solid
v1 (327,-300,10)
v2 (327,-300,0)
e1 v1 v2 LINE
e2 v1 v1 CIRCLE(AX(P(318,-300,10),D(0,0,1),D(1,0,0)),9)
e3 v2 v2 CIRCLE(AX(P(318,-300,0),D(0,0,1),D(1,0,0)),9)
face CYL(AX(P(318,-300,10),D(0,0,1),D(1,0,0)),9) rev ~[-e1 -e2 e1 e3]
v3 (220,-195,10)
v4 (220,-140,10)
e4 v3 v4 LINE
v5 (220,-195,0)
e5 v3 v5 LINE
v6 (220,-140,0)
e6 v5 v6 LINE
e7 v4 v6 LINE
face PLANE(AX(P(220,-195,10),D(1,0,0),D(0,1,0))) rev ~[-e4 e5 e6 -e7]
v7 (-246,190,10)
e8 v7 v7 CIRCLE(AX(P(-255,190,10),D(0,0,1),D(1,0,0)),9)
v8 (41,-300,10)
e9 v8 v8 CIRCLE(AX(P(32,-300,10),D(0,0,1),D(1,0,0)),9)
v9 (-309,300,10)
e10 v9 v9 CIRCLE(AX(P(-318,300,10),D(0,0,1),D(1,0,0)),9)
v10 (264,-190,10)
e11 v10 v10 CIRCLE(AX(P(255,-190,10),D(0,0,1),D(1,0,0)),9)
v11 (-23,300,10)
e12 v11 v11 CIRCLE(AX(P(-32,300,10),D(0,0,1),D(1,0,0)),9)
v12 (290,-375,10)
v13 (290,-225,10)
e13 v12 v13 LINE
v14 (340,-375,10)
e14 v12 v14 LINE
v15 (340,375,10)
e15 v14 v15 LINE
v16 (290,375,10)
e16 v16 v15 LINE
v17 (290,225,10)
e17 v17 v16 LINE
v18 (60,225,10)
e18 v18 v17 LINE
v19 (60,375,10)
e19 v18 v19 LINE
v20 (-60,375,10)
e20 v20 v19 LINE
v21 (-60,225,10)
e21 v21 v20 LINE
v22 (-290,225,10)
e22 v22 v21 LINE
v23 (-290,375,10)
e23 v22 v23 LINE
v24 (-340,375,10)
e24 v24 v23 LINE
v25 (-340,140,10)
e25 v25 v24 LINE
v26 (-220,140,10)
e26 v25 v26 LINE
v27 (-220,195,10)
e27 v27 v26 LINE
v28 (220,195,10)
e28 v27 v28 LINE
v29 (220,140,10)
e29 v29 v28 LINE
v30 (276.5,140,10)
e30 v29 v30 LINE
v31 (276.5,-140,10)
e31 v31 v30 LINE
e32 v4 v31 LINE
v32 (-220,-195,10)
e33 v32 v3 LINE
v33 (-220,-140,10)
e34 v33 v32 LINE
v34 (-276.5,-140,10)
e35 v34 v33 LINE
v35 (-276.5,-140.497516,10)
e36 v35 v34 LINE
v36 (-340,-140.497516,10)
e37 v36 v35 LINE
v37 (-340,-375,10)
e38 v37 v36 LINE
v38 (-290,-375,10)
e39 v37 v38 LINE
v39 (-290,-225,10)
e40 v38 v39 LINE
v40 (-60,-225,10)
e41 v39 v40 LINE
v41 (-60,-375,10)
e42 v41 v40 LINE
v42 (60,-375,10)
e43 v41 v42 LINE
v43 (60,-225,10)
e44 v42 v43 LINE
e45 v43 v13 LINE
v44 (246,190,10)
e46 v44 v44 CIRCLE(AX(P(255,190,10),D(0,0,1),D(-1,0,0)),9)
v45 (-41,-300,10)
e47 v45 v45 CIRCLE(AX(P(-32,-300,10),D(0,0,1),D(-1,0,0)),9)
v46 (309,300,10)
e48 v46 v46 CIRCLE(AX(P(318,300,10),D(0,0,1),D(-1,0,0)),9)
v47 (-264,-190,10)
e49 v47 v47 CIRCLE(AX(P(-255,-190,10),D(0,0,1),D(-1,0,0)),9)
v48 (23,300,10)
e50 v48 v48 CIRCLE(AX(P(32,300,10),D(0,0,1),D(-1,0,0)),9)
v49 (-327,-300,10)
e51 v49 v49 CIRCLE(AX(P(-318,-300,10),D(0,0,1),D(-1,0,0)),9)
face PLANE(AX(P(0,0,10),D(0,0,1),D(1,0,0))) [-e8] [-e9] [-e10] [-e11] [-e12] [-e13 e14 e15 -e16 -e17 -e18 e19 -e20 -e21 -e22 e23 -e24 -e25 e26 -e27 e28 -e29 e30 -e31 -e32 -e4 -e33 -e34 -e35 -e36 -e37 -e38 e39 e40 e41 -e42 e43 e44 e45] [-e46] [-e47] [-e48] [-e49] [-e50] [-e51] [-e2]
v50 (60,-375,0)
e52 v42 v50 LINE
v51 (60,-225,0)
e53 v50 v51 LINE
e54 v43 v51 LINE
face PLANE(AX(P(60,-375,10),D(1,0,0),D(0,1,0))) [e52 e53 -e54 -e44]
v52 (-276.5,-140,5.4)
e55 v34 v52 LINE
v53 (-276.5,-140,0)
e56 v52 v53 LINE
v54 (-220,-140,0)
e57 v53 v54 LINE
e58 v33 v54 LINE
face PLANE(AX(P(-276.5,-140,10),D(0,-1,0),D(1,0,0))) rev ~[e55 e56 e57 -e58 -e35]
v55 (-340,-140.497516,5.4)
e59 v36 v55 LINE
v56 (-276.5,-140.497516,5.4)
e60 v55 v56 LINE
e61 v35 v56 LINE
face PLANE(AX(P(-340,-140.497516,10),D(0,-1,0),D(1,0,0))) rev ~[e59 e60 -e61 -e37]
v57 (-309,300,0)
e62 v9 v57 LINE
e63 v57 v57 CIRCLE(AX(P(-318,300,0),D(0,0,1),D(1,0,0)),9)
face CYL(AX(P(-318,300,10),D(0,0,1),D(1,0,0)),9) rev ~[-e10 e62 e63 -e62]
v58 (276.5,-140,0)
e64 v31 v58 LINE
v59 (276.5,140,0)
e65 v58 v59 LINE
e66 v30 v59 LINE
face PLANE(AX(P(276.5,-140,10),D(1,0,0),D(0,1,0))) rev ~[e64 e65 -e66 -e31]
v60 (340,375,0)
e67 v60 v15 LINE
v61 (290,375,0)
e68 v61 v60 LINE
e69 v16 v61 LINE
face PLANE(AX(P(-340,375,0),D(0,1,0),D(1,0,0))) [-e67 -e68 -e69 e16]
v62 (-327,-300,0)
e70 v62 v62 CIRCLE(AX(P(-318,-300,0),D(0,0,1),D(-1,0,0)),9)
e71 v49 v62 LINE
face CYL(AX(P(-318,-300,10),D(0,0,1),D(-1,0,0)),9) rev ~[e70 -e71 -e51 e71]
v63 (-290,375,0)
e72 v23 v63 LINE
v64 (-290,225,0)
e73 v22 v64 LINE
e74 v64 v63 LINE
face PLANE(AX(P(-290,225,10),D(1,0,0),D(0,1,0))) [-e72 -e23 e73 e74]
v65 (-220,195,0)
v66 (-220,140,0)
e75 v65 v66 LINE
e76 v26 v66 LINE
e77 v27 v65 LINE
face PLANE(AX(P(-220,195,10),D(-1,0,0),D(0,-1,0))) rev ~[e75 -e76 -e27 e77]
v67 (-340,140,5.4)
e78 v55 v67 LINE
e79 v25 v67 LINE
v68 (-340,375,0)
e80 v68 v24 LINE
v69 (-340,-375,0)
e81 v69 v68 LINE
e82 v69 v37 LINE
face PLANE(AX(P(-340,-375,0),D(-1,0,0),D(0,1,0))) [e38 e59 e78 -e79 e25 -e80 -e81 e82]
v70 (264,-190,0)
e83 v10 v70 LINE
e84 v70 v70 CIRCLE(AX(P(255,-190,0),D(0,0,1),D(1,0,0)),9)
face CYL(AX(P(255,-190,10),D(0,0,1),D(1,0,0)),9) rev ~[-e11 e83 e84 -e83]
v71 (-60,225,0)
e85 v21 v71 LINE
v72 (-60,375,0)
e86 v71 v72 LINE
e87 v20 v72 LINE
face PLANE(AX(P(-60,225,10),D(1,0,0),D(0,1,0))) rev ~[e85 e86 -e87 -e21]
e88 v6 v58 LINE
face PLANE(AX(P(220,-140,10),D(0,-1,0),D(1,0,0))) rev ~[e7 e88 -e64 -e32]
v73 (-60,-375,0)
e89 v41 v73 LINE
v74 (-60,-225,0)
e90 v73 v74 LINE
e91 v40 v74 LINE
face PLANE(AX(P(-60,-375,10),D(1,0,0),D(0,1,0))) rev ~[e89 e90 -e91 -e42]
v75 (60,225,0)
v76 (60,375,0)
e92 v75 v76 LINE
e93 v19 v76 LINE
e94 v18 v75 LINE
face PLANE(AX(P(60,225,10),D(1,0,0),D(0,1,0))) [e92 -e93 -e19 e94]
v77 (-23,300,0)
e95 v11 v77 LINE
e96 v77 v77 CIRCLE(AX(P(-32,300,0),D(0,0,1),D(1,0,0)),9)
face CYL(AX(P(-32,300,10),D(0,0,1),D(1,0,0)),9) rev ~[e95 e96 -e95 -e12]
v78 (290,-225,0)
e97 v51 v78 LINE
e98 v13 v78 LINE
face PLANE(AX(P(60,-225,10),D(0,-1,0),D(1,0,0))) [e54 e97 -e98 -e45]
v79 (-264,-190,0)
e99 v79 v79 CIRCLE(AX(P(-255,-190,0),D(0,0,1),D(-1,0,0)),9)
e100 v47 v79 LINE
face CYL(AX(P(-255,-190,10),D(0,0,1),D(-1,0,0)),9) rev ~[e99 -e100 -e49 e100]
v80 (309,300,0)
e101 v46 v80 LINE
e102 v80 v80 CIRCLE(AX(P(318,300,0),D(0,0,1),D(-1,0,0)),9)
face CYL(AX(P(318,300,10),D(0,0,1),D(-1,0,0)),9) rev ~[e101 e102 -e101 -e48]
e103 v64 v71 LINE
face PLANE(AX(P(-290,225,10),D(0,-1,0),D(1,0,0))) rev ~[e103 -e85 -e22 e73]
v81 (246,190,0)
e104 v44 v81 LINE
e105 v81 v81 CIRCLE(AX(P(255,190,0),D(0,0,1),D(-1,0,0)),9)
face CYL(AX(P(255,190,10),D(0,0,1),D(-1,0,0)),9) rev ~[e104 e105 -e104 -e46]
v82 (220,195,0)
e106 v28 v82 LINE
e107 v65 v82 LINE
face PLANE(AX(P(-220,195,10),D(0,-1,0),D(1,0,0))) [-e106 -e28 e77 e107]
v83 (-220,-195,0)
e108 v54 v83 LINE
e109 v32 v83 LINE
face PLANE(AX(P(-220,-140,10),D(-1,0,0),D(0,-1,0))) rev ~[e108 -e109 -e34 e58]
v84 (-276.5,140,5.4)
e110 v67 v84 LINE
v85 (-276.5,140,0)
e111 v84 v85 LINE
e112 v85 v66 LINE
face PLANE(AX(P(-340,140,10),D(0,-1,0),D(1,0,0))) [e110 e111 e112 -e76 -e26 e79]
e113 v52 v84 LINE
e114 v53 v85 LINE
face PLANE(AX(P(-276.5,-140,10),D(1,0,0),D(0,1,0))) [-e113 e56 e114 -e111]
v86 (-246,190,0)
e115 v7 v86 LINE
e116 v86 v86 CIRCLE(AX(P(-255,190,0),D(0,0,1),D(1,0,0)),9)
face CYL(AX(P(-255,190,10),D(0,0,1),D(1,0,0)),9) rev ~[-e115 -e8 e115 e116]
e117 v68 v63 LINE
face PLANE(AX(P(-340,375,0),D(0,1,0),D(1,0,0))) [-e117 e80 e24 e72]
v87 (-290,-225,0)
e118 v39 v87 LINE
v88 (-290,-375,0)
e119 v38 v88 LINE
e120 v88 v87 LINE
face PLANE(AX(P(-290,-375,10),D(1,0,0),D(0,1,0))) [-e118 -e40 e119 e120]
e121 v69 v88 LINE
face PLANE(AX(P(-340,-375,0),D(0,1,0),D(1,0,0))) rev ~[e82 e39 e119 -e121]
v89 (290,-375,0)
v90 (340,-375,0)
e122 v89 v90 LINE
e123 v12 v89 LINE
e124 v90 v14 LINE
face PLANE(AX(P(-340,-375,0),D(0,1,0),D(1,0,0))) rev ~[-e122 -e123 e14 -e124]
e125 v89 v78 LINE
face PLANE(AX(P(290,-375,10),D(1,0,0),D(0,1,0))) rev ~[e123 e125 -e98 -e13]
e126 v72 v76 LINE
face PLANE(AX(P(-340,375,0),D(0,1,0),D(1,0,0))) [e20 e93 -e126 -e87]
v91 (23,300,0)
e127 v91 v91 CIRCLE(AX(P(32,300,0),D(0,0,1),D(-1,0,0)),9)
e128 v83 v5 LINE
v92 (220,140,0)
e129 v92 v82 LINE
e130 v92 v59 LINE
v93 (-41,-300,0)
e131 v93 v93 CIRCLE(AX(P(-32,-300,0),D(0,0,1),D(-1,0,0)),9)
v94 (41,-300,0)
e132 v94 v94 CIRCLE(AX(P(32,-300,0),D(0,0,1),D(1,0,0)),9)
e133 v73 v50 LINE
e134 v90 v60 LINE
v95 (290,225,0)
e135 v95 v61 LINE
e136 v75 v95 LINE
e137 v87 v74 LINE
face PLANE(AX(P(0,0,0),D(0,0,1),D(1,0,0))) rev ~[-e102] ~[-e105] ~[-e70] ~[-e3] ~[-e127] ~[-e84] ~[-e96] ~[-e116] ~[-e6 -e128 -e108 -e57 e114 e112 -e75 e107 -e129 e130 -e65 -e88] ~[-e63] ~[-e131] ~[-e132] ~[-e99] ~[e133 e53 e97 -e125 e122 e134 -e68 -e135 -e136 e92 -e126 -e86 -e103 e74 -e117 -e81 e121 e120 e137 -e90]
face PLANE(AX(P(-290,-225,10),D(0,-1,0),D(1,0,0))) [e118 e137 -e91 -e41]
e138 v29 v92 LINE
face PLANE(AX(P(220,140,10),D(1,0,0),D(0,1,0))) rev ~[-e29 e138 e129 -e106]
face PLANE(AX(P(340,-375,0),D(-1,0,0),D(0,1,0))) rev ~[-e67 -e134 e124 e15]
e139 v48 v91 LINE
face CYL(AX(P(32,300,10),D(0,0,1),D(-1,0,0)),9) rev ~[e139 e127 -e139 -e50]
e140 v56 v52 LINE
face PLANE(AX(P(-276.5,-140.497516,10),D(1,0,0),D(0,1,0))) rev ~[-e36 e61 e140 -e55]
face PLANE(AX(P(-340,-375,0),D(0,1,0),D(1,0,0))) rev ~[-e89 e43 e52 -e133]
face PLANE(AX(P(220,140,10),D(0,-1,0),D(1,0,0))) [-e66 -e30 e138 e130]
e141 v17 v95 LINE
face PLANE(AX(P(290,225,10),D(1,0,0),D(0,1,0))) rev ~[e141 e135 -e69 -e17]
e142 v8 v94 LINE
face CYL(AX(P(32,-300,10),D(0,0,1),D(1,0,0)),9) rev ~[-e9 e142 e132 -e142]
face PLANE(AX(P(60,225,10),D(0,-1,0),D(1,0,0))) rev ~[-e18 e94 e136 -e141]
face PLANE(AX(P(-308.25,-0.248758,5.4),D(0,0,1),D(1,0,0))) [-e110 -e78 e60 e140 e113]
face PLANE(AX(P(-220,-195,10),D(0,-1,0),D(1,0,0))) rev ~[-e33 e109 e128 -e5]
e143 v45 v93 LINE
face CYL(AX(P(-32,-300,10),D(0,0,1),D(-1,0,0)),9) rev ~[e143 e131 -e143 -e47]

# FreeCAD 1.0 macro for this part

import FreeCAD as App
import Part
import Sketcher
from FreeCAD import Vector

doc = App.newDocument("Part")
body = doc.addObject("PartDesign::Body", "Body")

# Sketch on XY plane
sketch1 = body.newObject("Sketcher::SketchObject", "Sketch")
sketch1.AttachmentSupport = (doc.getObject("XY_Plane"), [""])
sketch1.MapMode = "FlatFace"
sketch1.addGeometry(Part.LineSegment(Vector(-340, 375, 0), Vector(-340, -375, 0)), False)
sketch1.addGeometry(Part.LineSegment(Vector(-340, -375, 0), Vector(340, -375, 0)), False)
sketch1.addGeometry(Part.LineSegment(Vector(340, -375, 0), Vector(340, 375, 0)), False)
sketch1.addGeometry(Part.LineSegment(Vector(340, 375, 0), Vector(-340, 375, 0)), False)
sketch1.addConstraint(Sketcher.Constraint("Coincident", 0, 2, 1, 1))
sketch1.addConstraint(Sketcher.Constraint("Coincident", 1, 2, 2, 1))
sketch1.addConstraint(Sketcher.Constraint("Coincident", 2, 2, 3, 1))
sketch1.addConstraint(Sketcher.Constraint("Coincident", 3, 2, 0, 1))
sketch1.addConstraint(Sketcher.Constraint("Vertical", 0))
sketch1.addConstraint(Sketcher.Constraint("Horizontal", 1))
sketch1.addConstraint(Sketcher.Constraint("Vertical", 2))
sketch1.addConstraint(Sketcher.Constraint("Horizontal", 3))
sketch1.addConstraint(Sketcher.Constraint("Symmetric", 0, 2, 2, 2, -1, 1))
sketch1.addConstraint(Sketcher.Constraint("DistanceX", 1, 1, 1, 2, 680.0))
sketch1.addConstraint(Sketcher.Constraint("DistanceY", 0, 2, 0, 1, 750.0))
pad1 = body.newObject("PartDesign::Pad", "Pad")
pad1.Profile = sketch1
pad1.Length = 10

# Sketch on XY plane
sketch2 = body.newObject("Sketcher::SketchObject", "Sketch001")
sketch2.AttachmentSupport = (doc.getObject("XY_Plane"), [""])
sketch2.MapMode = "FlatFace"
sketch2.AttachmentOffset = App.Placement(Vector(0, 0, 10), App.Rotation())
sketch2.addGeometry(Part.LineSegment(Vector(-290, 375, 0), Vector(-290, 225, 0)), False)
sketch2.addGeometry(Part.LineSegment(Vector(-290, 225, 0), Vector(-60, 225, 0)), False)
sketch2.addGeometry(Part.LineSegment(Vector(-60, 225, 0), Vector(-60, 375, 0)), False)
sketch2.addGeometry(Part.LineSegment(Vector(-60, 375, 0), Vector(-290, 375, 0)), False)
sketch2.addGeometry(Part.LineSegment(Vector(60, 375, 0), Vector(60, 225, 0)), False)
sketch2.addGeometry(Part.LineSegment(Vector(60, 225, 0), Vector(290, 225, 0)), False)
sketch2.addGeometry(Part.LineSegment(Vector(290, 225, 0), Vector(290, 375, 0)), False)
sketch2.addGeometry(Part.LineSegment(Vector(290, 375, 0), Vector(60, 375, 0)), False)
sketch2.addGeometry(Part.LineSegment(Vector(60, -225, 0), Vector(60, -375, 0)), False)
sketch2.addGeometry(Part.LineSegment(Vector(60, -375, 0), Vector(290, -375, 0)), False)
sketch2.addGeometry(Part.LineSegment(Vector(290, -375, 0), Vector(290, -225, 0)), False)
sketch2.addGeometry(Part.LineSegment(Vector(290, -225, 0), Vector(60, -225, 0)), False)
sketch2.addGeometry(Part.LineSegment(Vector(-290, -225, 0), Vector(-290, -375, 0)), False)
sketch2.addGeometry(Part.LineSegment(Vector(-290, -375, 0), Vector(-60, -375, 0)), False)
sketch2.addGeometry(Part.LineSegment(Vector(-60, -375, 0), Vector(-60, -225, 0)), False)
sketch2.addGeometry(Part.LineSegment(Vector(-60, -225, 0), Vector(-290, -225, 0)), False)
sketch2.addConstraint(Sketcher.Constraint("Coincident", 0, 2, 1, 1))
sketch2.addConstraint(Sketcher.Constraint("Coincident", 1, 2, 2, 1))
sketch2.addConstraint(Sketcher.Constraint("Coincident", 2, 2, 3, 1))
sketch2.addConstraint(Sketcher.Constraint("Coincident", 3, 2, 0, 1))
sketch2.addConstraint(Sketcher.Constraint("Coincident", 4, 2, 5, 1))
sketch2.addConstraint(Sketcher.Constraint("Coincident", 5, 2, 6, 1))
sketch2.addConstraint(Sketcher.Constraint("Coincident", 6, 2, 7, 1))
sketch2.addConstraint(Sketcher.Constraint("Coincident", 7, 2, 4, 1))
sketch2.addConstraint(Sketcher.Constraint("Coincident", 8, 2, 9, 1))
sketch2.addConstraint(Sketcher.Constraint("Coincident", 9, 2, 10, 1))
sketch2.addConstraint(Sketcher.Constraint("Coincident", 10, 2, 11, 1))
sketch2.addConstraint(Sketcher.Constraint("Coincident", 11, 2, 8, 1))
sketch2.addConstraint(Sketcher.Constraint("Coincident", 12, 2, 13, 1))
sketch2.addConstraint(Sketcher.Constraint("Coincident", 13, 2, 14, 1))
sketch2.addConstraint(Sketcher.Constraint("Coincident", 14, 2, 15, 1))
sketch2.addConstraint(Sketcher.Constraint("Coincident", 15, 2, 12, 1))
sketch2.addConstraint(Sketcher.Constraint("Vertical", 0))
sketch2.addConstraint(Sketcher.Constraint("Horizontal", 1))
sketch2.addConstraint(Sketcher.Constraint("Vertical", 2))
sketch2.addConstraint(Sketcher.Constraint("Horizontal", 3))
sketch2.addConstraint(Sketcher.Constraint("Vertical", 4))
sketch2.addConstraint(Sketcher.Constraint("Horizontal", 5))
sketch2.addConstraint(Sketcher.Constraint("Vertical", 6))
sketch2.addConstraint(Sketcher.Constraint("Horizontal", 7))
sketch2.addConstraint(Sketcher.Constraint("Vertical", 8))
sketch2.addConstraint(Sketcher.Constraint("Horizontal", 9))
sketch2.addConstraint(Sketcher.Constraint("Vertical", 10))
sketch2.addConstraint(Sketcher.Constraint("Horizontal", 11))
sketch2.addConstraint(Sketcher.Constraint("Vertical", 12))
sketch2.addConstraint(Sketcher.Constraint("Horizontal", 13))
sketch2.addConstraint(Sketcher.Constraint("Vertical", 14))
sketch2.addConstraint(Sketcher.Constraint("Horizontal", 15))
sketch2.addConstraint(Sketcher.Constraint("Symmetric", 2, 2, 8, 2, -1, 1))
sketch2.addConstraint(Sketcher.Constraint("Symmetric", 0, 2, 10, 2, -1, 1))
sketch2.addConstraint(Sketcher.Constraint("Symmetric", 6, 2, 12, 2, -1, 1))
sketch2.addConstraint(Sketcher.Constraint("Symmetric", 4, 2, 14, 2, -1, 1))
sketch2.addConstraint(Sketcher.Constraint("Symmetric", 1, 2, 4, 2, -2))
sketch2.addConstraint(Sketcher.Constraint("Symmetric", 3, 2, 6, 2, -2))
sketch2.addConstraint(Sketcher.Constraint("DistanceX", 1, 1, 1, 2, 230.0))
sketch2.addConstraint(Sketcher.Constraint("DistanceY", 0, 2, 0, 1, 150.0))
sketch2.addConstraint(Sketcher.Constraint("DistanceX", 0, 2, -1, 1, 290.0))
sketch2.addConstraint(Sketcher.Constraint("DistanceY", -1, 1, 0, 2, 225.0))
pocket1 = body.newObject("PartDesign::Pocket", "Pocket")
pocket1.Profile = sketch2
pocket1.Type = "ThroughAll"

# Sketch on XY plane
sketch3 = body.newObject("Sketcher::SketchObject", "Sketch002")
sketch3.AttachmentSupport = (doc.getObject("XY_Plane"), [""])
sketch3.MapMode = "FlatFace"
sketch3.AttachmentOffset = App.Placement(Vector(0, 0, 10), App.Rotation())
sketch3.addGeometry(Part.Circle(Vector(-318, 300, 0), Vector(0, 0, 1), 9), False)
sketch3.addGeometry(Part.Circle(Vector(-32, 300, 0), Vector(0, 0, 1), 9), False)
sketch3.addGeometry(Part.Circle(Vector(-255, 190, 0), Vector(0, 0, 1), 9), False)
sketch3.addGeometry(Part.Circle(Vector(318, 300, 0), Vector(0, 0, 1), 9), False)
sketch3.addGeometry(Part.Circle(Vector(255, 190, 0), Vector(0, 0, 1), 9), False)
sketch3.addGeometry(Part.Circle(Vector(32, 300, 0), Vector(0, 0, 1), 9), False)
sketch3.addGeometry(Part.Circle(Vector(318, -300, 0), Vector(0, 0, 1), 9), False)
sketch3.addGeometry(Part.Circle(Vector(255, -190, 0), Vector(0, 0, 1), 9), False)
sketch3.addGeometry(Part.Circle(Vector(32, -300, 0), Vector(0, 0, 1), 9), False)
sketch3.addGeometry(Part.Circle(Vector(-255, -190, 0), Vector(0, 0, 1), 9), False)
sketch3.addGeometry(Part.Circle(Vector(-32, -300, 0), Vector(0, 0, 1), 9), False)
sketch3.addGeometry(Part.Circle(Vector(-318, -300, 0), Vector(0, 0, 1), 9), False)
sketch3.addConstraint(Sketcher.Constraint("Equal", 0, 1))
sketch3.addConstraint(Sketcher.Constraint("Equal", 1, 2))
sketch3.addConstraint(Sketcher.Constraint("Equal", 2, 3))
sketch3.addConstraint(Sketcher.Constraint("Equal", 3, 4))
sketch3.addConstraint(Sketcher.Constraint("Equal", 4, 5))
sketch3.addConstraint(Sketcher.Constraint("Equal", 5, 6))
sketch3.addConstraint(Sketcher.Constraint("Equal", 6, 7))
sketch3.addConstraint(Sketcher.Constraint("Equal", 7, 8))
sketch3.addConstraint(Sketcher.Constraint("Equal", 8, 9))
sketch3.addConstraint(Sketcher.Constraint("Equal", 9, 10))
sketch3.addConstraint(Sketcher.Constraint("Equal", 10, 11))
sketch3.addConstraint(Sketcher.Constraint("Symmetric", 0, 3, 6, 3, -1, 1))
sketch3.addConstraint(Sketcher.Constraint("Symmetric", 2, 3, 7, 3, -1, 1))
sketch3.addConstraint(Sketcher.Constraint("Symmetric", 1, 3, 8, 3, -1, 1))
sketch3.addConstraint(Sketcher.Constraint("Symmetric", 4, 3, 9, 3, -1, 1))
sketch3.addConstraint(Sketcher.Constraint("Symmetric", 5, 3, 10, 3, -1, 1))
sketch3.addConstraint(Sketcher.Constraint("Symmetric", 3, 3, 11, 3, -1, 1))
sketch3.addConstraint(Sketcher.Constraint("Symmetric", 0, 3, 3, 3, -2))
sketch3.addConstraint(Sketcher.Constraint("Symmetric", 2, 3, 4, 3, -2))
sketch3.addConstraint(Sketcher.Constraint("Symmetric", 1, 3, 5, 3, -2))
sketch3.addConstraint(Sketcher.Constraint("Horizontal", 0, 3, 1, 3))
sketch3.addConstraint(Sketcher.Constraint("Diameter", 0, 18.0))
sketch3.addConstraint(Sketcher.Constraint("DistanceX", 0, 3, -1, 1, 318.0))
sketch3.addConstraint(Sketcher.Constraint("DistanceY", -1, 1, 0, 3, 300.0))
sketch3.addConstraint(Sketcher.Constraint("DistanceX", 1, 3, -1, 1, 32.0))
sketch3.addConstraint(Sketcher.Constraint("DistanceX", 2, 3, -1, 1, 255.0))
sketch3.addConstraint(Sketcher.Constraint("DistanceY", -1, 1, 2, 3, 190.0))
pocket2 = body.newObject("PartDesign::Pocket", "Pocket001")
pocket2.Profile = sketch3
pocket2.Type = "ThroughAll"

# Sketch on XY plane
sketch4 = body.newObject("Sketcher::SketchObject", "Sketch003")
sketch4.AttachmentSupport = (doc.getObject("XY_Plane"), [""])
sketch4.MapMode = "FlatFace"
sketch4.AttachmentOffset = App.Placement(Vector(0, 0, 10), App.Rotation())
sketch4.addGeometry(Part.LineSegment(Vector(220, 195, 0), Vector(-220, 195, 0)), False)
sketch4.addGeometry(Part.LineSegment(Vector(-220, 195, 0), Vector(-220, 140, 0)), False)
sketch4.addGeometry(Part.LineSegment(Vector(-220, 140, 0), Vector(-276, 140, 0)), False)
sketch4.addGeometry(Part.LineSegment(Vector(-276, 140, 0), Vector(-276, -140, 0)), False)
sketch4.addGeometry(Part.LineSegment(Vector(-276, -140, 0), Vector(-220, -140, 0)), False)
sketch4.addGeometry(Part.LineSegment(Vector(-220, -140, 0), Vector(-220, -195, 0)), False)
sketch4.addGeometry(Part.LineSegment(Vector(-220, -195, 0), Vector(220, -195, 0)), False)
sketch4.addGeometry(Part.LineSegment(Vector(220, -195, 0), Vector(220, -140, 0)), False)
sketch4.addGeometry(Part.LineSegment(Vector(220, -140, 0), Vector(276, -140, 0)), False)
sketch4.addGeometry(Part.LineSegment(Vector(276, -140, 0), Vector(276, 140, 0)), False)
sketch4.addGeometry(Part.LineSegment(Vector(276, 140, 0), Vector(220, 140, 0)), False)
sketch4.addGeometry(Part.LineSegment(Vector(220, 140, 0), Vector(220, 195, 0)), False)
sketch4.addConstraint(Sketcher.Constraint("Coincident", 0, 2, 1, 1))
sketch4.addConstraint(Sketcher.Constraint("Coincident", 1, 2, 2, 1))
sketch4.addConstraint(Sketcher.Constraint("Coincident", 2, 2, 3, 1))
sketch4.addConstraint(Sketcher.Constraint("Coincident", 3, 2, 4, 1))
sketch4.addConstraint(Sketcher.Constraint("Coincident", 4, 2, 5, 1))
sketch4.addConstraint(Sketcher.Constraint("Coincident", 5, 2, 6, 1))
sketch4.addConstraint(Sketcher.Constraint("Coincident", 6, 2, 7, 1))
sketch4.addConstraint(Sketcher.Constraint("Coincident", 7, 2, 8, 1))
sketch4.addConstraint(Sketcher.Constraint("Coincident", 8, 2, 9, 1))
sketch4.addConstraint(Sketcher.Constraint("Coincident", 9, 2, 10, 1))
sketch4.addConstraint(Sketcher.Constraint("Coincident", 10, 2, 11, 1))
sketch4.addConstraint(Sketcher.Constraint("Coincident", 11, 2, 0, 1))
sketch4.addConstraint(Sketcher.Constraint("Horizontal", 0))
sketch4.addConstraint(Sketcher.Constraint("Vertical", 1))
sketch4.addConstraint(Sketcher.Constraint("Horizontal", 2))
sketch4.addConstraint(Sketcher.Constraint("Vertical", 3))
sketch4.addConstraint(Sketcher.Constraint("Horizontal", 4))
sketch4.addConstraint(Sketcher.Constraint("Vertical", 5))
sketch4.addConstraint(Sketcher.Constraint("Horizontal", 6))
sketch4.addConstraint(Sketcher.Constraint("Vertical", 7))
sketch4.addConstraint(Sketcher.Constraint("Horizontal", 8))
sketch4.addConstraint(Sketcher.Constraint("Vertical", 9))
sketch4.addConstraint(Sketcher.Constraint("Horizontal", 10))
sketch4.addConstraint(Sketcher.Constraint("Vertical", 11))
sketch4.addConstraint(Sketcher.Constraint("Symmetric", 0, 2, 6, 2, -1, 1))
sketch4.addConstraint(Sketcher.Constraint("Symmetric", 2, 2, 8, 2, -1, 1))
sketch4.addConstraint(Sketcher.Constraint("Symmetric", 4, 2, 10, 2, -1, 1))
sketch4.addConstraint(Sketcher.Constraint("Symmetric", 4, 2, 7, 2, -2))
sketch4.addConstraint(Sketcher.Constraint("DistanceX", 0, 2, 0, 1, 440.0))
sketch4.addConstraint(Sketcher.Constraint("DistanceY", 1, 2, 1, 1, 55.0))
sketch4.addConstraint(Sketcher.Constraint("DistanceY", 3, 2, 3, 1, 280.0))
sketch4.addConstraint(Sketcher.Constraint("DistanceX", 2, 2, 2, 1, 56.5))
pocket3 = body.newObject("PartDesign::Pocket", "Pocket002")
pocket3.Profile = sketch4
pocket3.Type = "ThroughAll"

# Sketch on XY plane
sketch5 = body.newObject("Sketcher::SketchObject", "Sketch004")
sketch5.AttachmentSupport = (doc.getObject("XY_Plane"), [""])
sketch5.MapMode = "FlatFace"
sketch5.AttachmentOffset = App.Placement(Vector(0, 0, 10), App.Rotation())
sketch5.addGeometry(Part.LineSegment(Vector(-340, 140, 0), Vector(-340, -140, 0)), False)
sketch5.addGeometry(Part.LineSegment(Vector(-340, -140, 0), Vector(-276, -140, 0)), False)
sketch5.addGeometry(Part.LineSegment(Vector(-276, -140, 0), Vector(-276, 140, 0)), False)
sketch5.addGeometry(Part.LineSegment(Vector(-276, 140, 0), Vector(-340, 140, 0)), False)
sketch5.addConstraint(Sketcher.Constraint("Coincident", 0, 2, 1, 1))
sketch5.addConstraint(Sketcher.Constraint("Coincident", 1, 2, 2, 1))
sketch5.addConstraint(Sketcher.Constraint("Coincident", 2, 2, 3, 1))
sketch5.addConstraint(Sketcher.Constraint("Coincident", 3, 2, 0, 1))
sketch5.addConstraint(Sketcher.Constraint("Vertical", 0))
sketch5.addConstraint(Sketcher.Constraint("Horizontal", 1))
sketch5.addConstraint(Sketcher.Constraint("Vertical", 2))
sketch5.addConstraint(Sketcher.Constraint("Horizontal", 3))
sketch5.addConstraint(Sketcher.Constraint("DistanceX", 1, 1, 1, 2, 63.5))
sketch5.addConstraint(Sketcher.Constraint("DistanceX", 0, 2, -1, 1, 340.0))
sketch5.addConstraint(Sketcher.Constraint("DistanceY", -1, 1, 2, 2, 140.0))
sketch5.addConstraint(Sketcher.Constraint("DistanceY", 0, 2, 0, 1, 280.497516))
pocket4 = body.newObject("PartDesign::Pocket", "Pocket003")
pocket4.Profile = sketch5
pocket4.Length = 4.6

doc.recompute()
